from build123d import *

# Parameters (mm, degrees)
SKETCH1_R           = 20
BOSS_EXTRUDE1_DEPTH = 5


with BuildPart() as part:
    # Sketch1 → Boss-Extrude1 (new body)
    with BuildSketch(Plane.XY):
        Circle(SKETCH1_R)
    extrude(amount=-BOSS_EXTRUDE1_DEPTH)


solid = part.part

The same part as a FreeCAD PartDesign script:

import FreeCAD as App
import Part
import Sketcher

V = App.Vector

doc = App.newDocument("Part")
params = doc.addObject("Spreadsheet::Sheet", "Params")
for row, (alias, value) in enumerate([
    ("sketch1_diameter", "40 mm"),
    ("pad1_length", "5 mm"),
], start=1):
    params.set(f"A{row}", alias)
    params.set(f"B{row}", "=" + value)
    params.setAlias(f"B{row}", alias)

body = doc.addObject("PartDesign::Body", "Body")

# Sketch on XY plane
sketch1 = body.newObject("Sketcher::SketchObject", "Sketch")
sketch1.AttachmentSupport = (doc.getObject("XY_Plane"), [""])
sketch1.MapMode = "FlatFace"
sketch1.addGeometry(Part.Circle(V(0, 0, 0), V(0, 0, 1), 20), False)
sketch1.addConstraint(Sketcher.Constraint("Coincident", 0, 3, -1, 1))
sketch1.addConstraint(Sketcher.Constraint("Diameter", 0, 40.0))
sketch1.setExpression("Constraints[1]", "Params.sketch1_diameter")
pad1 = body.newObject("PartDesign::Pad", "Pad")
pad1.Profile = sketch1
pad1.setExpression("Length", "Params.pad1_length")
pad1.Reversed = True

doc.recompute()
